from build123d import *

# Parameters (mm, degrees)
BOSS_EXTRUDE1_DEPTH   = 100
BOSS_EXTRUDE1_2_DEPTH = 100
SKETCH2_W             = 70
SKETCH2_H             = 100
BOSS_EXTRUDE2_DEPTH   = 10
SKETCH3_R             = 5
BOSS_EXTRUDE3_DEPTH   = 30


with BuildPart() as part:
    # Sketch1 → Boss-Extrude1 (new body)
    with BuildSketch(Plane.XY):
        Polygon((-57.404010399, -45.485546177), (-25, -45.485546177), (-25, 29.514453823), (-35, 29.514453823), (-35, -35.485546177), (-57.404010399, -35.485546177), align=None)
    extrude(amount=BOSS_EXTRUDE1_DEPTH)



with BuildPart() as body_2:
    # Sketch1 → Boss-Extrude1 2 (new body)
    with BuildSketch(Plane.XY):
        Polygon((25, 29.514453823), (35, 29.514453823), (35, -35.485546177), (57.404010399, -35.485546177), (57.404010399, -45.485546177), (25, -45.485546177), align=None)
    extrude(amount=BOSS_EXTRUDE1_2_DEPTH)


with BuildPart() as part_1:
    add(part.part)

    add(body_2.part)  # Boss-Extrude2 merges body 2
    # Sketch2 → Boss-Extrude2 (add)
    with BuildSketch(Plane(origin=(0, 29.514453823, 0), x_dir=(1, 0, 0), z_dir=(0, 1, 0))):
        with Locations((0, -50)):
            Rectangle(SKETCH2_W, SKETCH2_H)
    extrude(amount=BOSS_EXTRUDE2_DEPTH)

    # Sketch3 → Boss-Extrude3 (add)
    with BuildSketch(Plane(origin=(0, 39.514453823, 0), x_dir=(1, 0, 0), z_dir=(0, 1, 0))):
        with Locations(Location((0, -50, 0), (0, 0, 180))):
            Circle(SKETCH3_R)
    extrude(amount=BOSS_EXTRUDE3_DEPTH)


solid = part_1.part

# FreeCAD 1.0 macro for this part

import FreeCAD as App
import Part
import Sketcher

V = App.Vector
Q = App.Units.Quantity

doc = App.newDocument("Part")
body = doc.addObject("PartDesign::Body", "Body")

# Sketch on XY plane
sketch1 = body.newObject("Sketcher::SketchObject", "Sketch")
sketch1.AttachmentSupport = (doc.getObject("XY_Plane"), [""])
sketch1.MapMode = "FlatFace"
sketch1.addGeometry(Part.LineSegment(V(-57, -45, 0), V(-25, -45, 0)), False)
sketch1.addGeometry(Part.LineSegment(V(-25, -45, 0), V(-25, 30, 0)), False)
sketch1.addGeometry(Part.LineSegment(V(-25, 30, 0), V(-35, 30, 0)), False)
sketch1.addGeometry(Part.LineSegment(V(-35, 30, 0), V(-35, -35, 0)), False)
sketch1.addGeometry(Part.LineSegment(V(-35, -35, 0), V(-57, -35, 0)), False)
sketch1.addGeometry(Part.LineSegment(V(-57, -35, 0), V(-57, -45, 0)), False)
sketch1.addConstraint(Sketcher.Constraint("Coincident", 0, 2, 1, 1))
sketch1.addConstraint(Sketcher.Constraint("Coincident", 1, 2, 2, 1))
sketch1.addConstraint(Sketcher.Constraint("Coincident", 2, 2, 3, 1))
sketch1.addConstraint(Sketcher.Constraint("Coincident", 3, 2, 4, 1))
sketch1.addConstraint(Sketcher.Constraint("Coincident", 4, 2, 5, 1))
sketch1.addConstraint(Sketcher.Constraint("Coincident", 5, 2, 0, 1))
sketch1.addConstraint(Sketcher.Constraint("Horizontal", 0))
sketch1.addConstraint(Sketcher.Constraint("Vertical", 1))
sketch1.addConstraint(Sketcher.Constraint("Horizontal", 2))
sketch1.addConstraint(Sketcher.Constraint("Vertical", 3))
sketch1.addConstraint(Sketcher.Constraint("Horizontal", 4))
sketch1.addConstraint(Sketcher.Constraint("Vertical", 5))
sketch1.addConstraint(Sketcher.Constraint("Equal", 2, 5))
sketch1.addConstraint(Sketcher.Constraint("DistanceX", 2, 2, 2, 1, Q("10 mm")))
sketch1.addConstraint(Sketcher.Constraint("DistanceY", 1, 1, 1, 2, Q("75 mm")))
sketch1.addConstraint(Sketcher.Constraint("DistanceX", 0, 2, -1, 1, Q("25 mm")))
sketch1.addConstraint(Sketcher.Constraint("DistanceX", 0, 1, 0, 2, Q("32.40401 mm")))
sketch1.addConstraint(Sketcher.Constraint("DistanceY", 0, 2, -1, 1, Q("45.485546 mm")))
pad1 = body.newObject("PartDesign::Pad", "Pad")
pad1.Profile = sketch1
pad1.Length = 100
body2 = doc.addObject("PartDesign::Body", "Body001")

# Sketch on XY plane
sketch2 = body2.newObject("Sketcher::SketchObject", "Sketch001")
sketch2.AttachmentSupport = (doc.getObject("XY_Plane001"), [""])
sketch2.MapMode = "FlatFace"
sketch2.addGeometry(Part.LineSegment(V(35, 30, 0), V(25, 30, 0)), False)
sketch2.addGeometry(Part.LineSegment(V(25, 30, 0), V(25, -45, 0)), False)
sketch2.addGeometry(Part.LineSegment(V(25, -45, 0), V(57, -45, 0)), False)
sketch2.addGeometry(Part.LineSegment(V(57, -45, 0), V(57, -35, 0)), False)
sketch2.addGeometry(Part.LineSegment(V(57, -35, 0), V(35, -35, 0)), False)
sketch2.addGeometry(Part.LineSegment(V(35, -35, 0), V(35, 30, 0)), False)
sketch2.addConstraint(Sketcher.Constraint("Coincident", 0, 2, 1, 1))
sketch2.addConstraint(Sketcher.Constraint("Coincident", 1, 2, 2, 1))
sketch2.addConstraint(Sketcher.Constraint("Coincident", 2, 2, 3, 1))
sketch2.addConstraint(Sketcher.Constraint("Coincident", 3, 2, 4, 1))
sketch2.addConstraint(Sketcher.Constraint("Coincident", 4, 2, 5, 1))
sketch2.addConstraint(Sketcher.Constraint("Coincident", 5, 2, 0, 1))
sketch2.addConstraint(Sketcher.Constraint("Horizontal", 0))
sketch2.addConstraint(Sketcher.Constraint("Vertical", 1))
sketch2.addConstraint(Sketcher.Constraint("Horizontal", 2))
sketch2.addConstraint(Sketcher.Constraint("Vertical", 3))
sketch2.addConstraint(Sketcher.Constraint("Horizontal", 4))
sketch2.addConstraint(Sketcher.Constraint("Vertical", 5))
sketch2.addConstraint(Sketcher.Constraint("Equal", 0, 3))
sketch2.addConstraint(Sketcher.Constraint("DistanceX", 0, 2, 0, 1, Q("10 mm")))
sketch2.addConstraint(Sketcher.Constraint("DistanceY", 1, 2, 1, 1, Q("75 mm")))
sketch2.addConstraint(Sketcher.Constraint("DistanceX", -1, 1, 0, 2, Q("25 mm")))
sketch2.addConstraint(Sketcher.Constraint("DistanceX", 2, 1, 2, 2, Q("32.40401 mm")))
sketch2.addConstraint(Sketcher.Constraint("DistanceY", -1, 1, 0, 2, Q("29.514454 mm")))
pad2 = body2.newObject("PartDesign::Pad", "Pad001")
pad2.Profile = sketch2
pad2.Length = 100
body.AllowCompound = True
doc.recompute()

boolean = body.newObject("PartDesign::Boolean", "Boolean")
boolean.Type = "Fuse"
boolean.addObjects([body2])

# Sketch on XZ plane
sketch3 = body.newObject("Sketcher::SketchObject", "Sketch002")
sketch3.AttachmentSupport = (doc.getObject("XZ_Plane"), [""])
sketch3.MapMode = "FlatFace"
sketch3.AttachmentOffset = App.Placement(V(0, 0, -29.514454), App.Rotation())
sketch3.addGeometry(Part.LineSegment(V(-35, 0, 0), V(-35, 100, 0)), False)
sketch3.addGeometry(Part.LineSegment(V(-35, 100, 0), V(35, 100, 0)), False)
sketch3.addGeometry(Part.LineSegment(V(35, 100, 0), V(35, 0, 0)), False)
sketch3.addGeometry(Part.LineSegment(V(35, 0, 0), V(-35, 0, 0)), False)
sketch3.addConstraint(Sketcher.Constraint("Coincident", 0, 2, 1, 1))
sketch3.addConstraint(Sketcher.Constraint("Coincident", 1, 2, 2, 1))
sketch3.addConstraint(Sketcher.Constraint("Coincident", 2, 2, 3, 1))
sketch3.addConstraint(Sketcher.Constraint("Coincident", 3, 2, 0, 1))
sketch3.addConstraint(Sketcher.Constraint("Vertical", 0))
sketch3.addConstraint(Sketcher.Constraint("Horizontal", 1))
sketch3.addConstraint(Sketcher.Constraint("Vertical", 2))
sketch3.addConstraint(Sketcher.Constraint("Horizontal", 3))
sketch3.addConstraint(Sketcher.Constraint("Symmetric", 2, 2, 3, 2, -1, 1))
sketch3.addConstraint(Sketcher.Constraint("DistanceX", 1, 1, 1, 2, Q("70 mm")))
sketch3.addConstraint(Sketcher.Constraint("DistanceY", 0, 1, 0, 2, Q("100 mm")))
pad3 = body.newObject("PartDesign::Pad", "Pad002")
pad3.Profile = sketch3
pad3.Length = 10
pad3.Reversed = True

# Sketch on XZ plane
sketch4 = body.newObject("Sketcher::SketchObject", "Sketch003")
sketch4.AttachmentSupport = (doc.getObject("XZ_Plane"), [""])
sketch4.MapMode = "FlatFace"
sketch4.AttachmentOffset = App.Placement(V(0, 0, -39.514454), App.Rotation())
sketch4.addGeometry(Part.Circle(V(0, 50, 0), V(0, 0, 1), 5), False)
sketch4.addConstraint(Sketcher.Constraint("PointOnObject", 0, 3, -2))
sketch4.addConstraint(Sketcher.Constraint("Diameter", 0, Q("10 mm")))
sketch4.addConstraint(Sketcher.Constraint("DistanceY", -1, 1, 0, 3, Q("50 mm")))
pad4 = body.newObject("PartDesign::Pad", "Pad003")
pad4.Profile = sketch4
pad4.Length = 30
pad4.Reversed = True

doc.recompute()
